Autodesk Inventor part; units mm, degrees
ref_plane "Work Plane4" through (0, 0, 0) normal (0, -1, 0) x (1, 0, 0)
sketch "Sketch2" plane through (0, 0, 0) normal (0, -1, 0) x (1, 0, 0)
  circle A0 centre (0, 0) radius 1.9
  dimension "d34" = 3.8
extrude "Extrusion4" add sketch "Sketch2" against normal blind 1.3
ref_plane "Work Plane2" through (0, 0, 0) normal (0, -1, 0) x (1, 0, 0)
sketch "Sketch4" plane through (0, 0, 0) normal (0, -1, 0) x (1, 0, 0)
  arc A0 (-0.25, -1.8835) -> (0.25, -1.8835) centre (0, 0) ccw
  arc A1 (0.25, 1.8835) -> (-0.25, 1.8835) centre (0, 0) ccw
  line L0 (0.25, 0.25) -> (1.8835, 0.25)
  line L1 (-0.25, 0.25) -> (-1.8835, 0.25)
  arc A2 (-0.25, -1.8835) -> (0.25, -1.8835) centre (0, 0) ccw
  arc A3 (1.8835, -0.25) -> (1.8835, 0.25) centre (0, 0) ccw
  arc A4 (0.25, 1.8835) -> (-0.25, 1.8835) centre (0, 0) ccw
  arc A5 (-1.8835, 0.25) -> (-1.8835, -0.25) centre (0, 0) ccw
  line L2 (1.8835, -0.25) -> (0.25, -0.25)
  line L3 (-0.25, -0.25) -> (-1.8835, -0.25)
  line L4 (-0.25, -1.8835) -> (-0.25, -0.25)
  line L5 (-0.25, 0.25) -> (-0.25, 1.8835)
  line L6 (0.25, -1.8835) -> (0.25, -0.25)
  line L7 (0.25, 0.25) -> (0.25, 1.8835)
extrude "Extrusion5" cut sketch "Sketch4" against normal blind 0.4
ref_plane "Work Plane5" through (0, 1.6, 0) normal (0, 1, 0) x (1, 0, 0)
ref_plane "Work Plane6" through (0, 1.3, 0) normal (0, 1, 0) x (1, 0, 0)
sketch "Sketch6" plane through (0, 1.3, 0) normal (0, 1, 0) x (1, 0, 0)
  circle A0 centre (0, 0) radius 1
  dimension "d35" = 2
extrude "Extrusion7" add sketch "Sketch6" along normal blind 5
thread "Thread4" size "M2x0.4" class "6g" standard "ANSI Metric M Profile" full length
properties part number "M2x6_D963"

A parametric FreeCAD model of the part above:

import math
import FreeCAD as App
import Part
import Sketcher
Q = App.Units.Quantity

doc = App.newDocument("Part")
params = doc.addObject("Spreadsheet::Sheet", "Params")
for row, (alias, value) in enumerate([
    ("sketch1_diameter", "3.8 mm"),
    ("pad1_length", "1.3 mm"),
    ("sketch2_radius", "1.9 mm"),
    ("pocket1_length", "0.4 mm"),
    ("sketch3_diameter", "2 mm"),
    ("pad2_length", "5 mm"),
], start=1):
    params.set(f"A{row}", alias)
    params.set(f"B{row}", "=" + value)
    params.setAlias(f"B{row}", alias)

body = doc.addObject("PartDesign::Body", "Body")

sketch1 = body.newObject("Sketcher::SketchObject", "Sketch")
sketch1.AttachmentSupport = (doc.getObject("XZ_Plane"), [""])
sketch1.MapMode = "FlatFace"
sketch1.addGeometry(Part.Circle(App.Vector(0, 0, 0), App.Vector(0, 0, 1), 1.9), False)
sketch1.addConstraint(Sketcher.Constraint("Coincident", 0, 3, -1, 1))
sketch1.addConstraint(Sketcher.Constraint("Diameter", 0, Q("3.8 mm")))
sketch1.setExpression("Constraints[1]", "Params.sketch1_diameter")
pad1 = body.newObject("PartDesign::Pad", "Pad")
pad1.Profile = sketch1
pad1.setExpression("Length", "Params.pad1_length")
pad1.Reversed = True

sketch2 = body.newObject("Sketcher::SketchObject", "Sketch001")
sketch2.AttachmentSupport = (doc.getObject("XZ_Plane"), [""])
sketch2.MapMode = "FlatFace"
sketch2.addGeometry(Part.LineSegment(App.Vector(-0.2, -0.2, 0), App.Vector(-0.2, -1.9, 0)), False)
sketch2.addGeometry(Part.ArcOfCircle(Part.Circle(App.Vector(0, 0, 0), App.Vector(0, 0, 1), 1.9), math.radians(-97.56), math.radians(-82.44)), False)
sketch2.addGeometry(Part.LineSegment(App.Vector(0.2, -1.9, 0), App.Vector(0.2, -0.2, 0)), False)
sketch2.addGeometry(Part.LineSegment(App.Vector(0.2, -0.2, 0), App.Vector(1.9, -0.2, 0)), False)
sketch2.addGeometry(Part.ArcOfCircle(Part.Circle(App.Vector(0, 0, 0), App.Vector(0, 0, 1), 1.9), math.radians(-7.56), math.radians(7.56)), False)
sketch2.addGeometry(Part.LineSegment(App.Vector(1.9, 0.2, 0), App.Vector(0.2, 0.2, 0)), False)
sketch2.addGeometry(Part.LineSegment(App.Vector(0.2, 0.2, 0), App.Vector(0.2, 1.9, 0)), False)
sketch2.addGeometry(Part.ArcOfCircle(Part.Circle(App.Vector(0, 0, 0), App.Vector(0, 0, 1), 1.9), math.radians(82.44), math.radians(97.56)), False)
sketch2.addGeometry(Part.LineSegment(App.Vector(-0.2, 1.9, 0), App.Vector(-0.2, 0.2, 0)), False)
sketch2.addGeometry(Part.LineSegment(App.Vector(-0.2, 0.2, 0), App.Vector(-1.9, 0.2, 0)), False)
sketch2.addGeometry(Part.ArcOfCircle(Part.Circle(App.Vector(0, 0, 0), App.Vector(0, 0, 1), 1.9), math.radians(172.44), math.radians(187.56)), False)
sketch2.addGeometry(Part.LineSegment(App.Vector(-1.9, -0.2, 0), App.Vector(-0.2, -0.2, 0)), False)
sketch2.addConstraint(Sketcher.Constraint("Coincident", 0, 2, 1, 1))
sketch2.addConstraint(Sketcher.Constraint("Coincident", 1, 2, 2, 1))
sketch2.addConstraint(Sketcher.Constraint("Coincident", 2, 2, 3, 1))
sketch2.addConstraint(Sketcher.Constraint("Coincident", 3, 2, 4, 1))
sketch2.addConstraint(Sketcher.Constraint("Coincident", 4, 2, 5, 1))
sketch2.addConstraint(Sketcher.Constraint("Coincident", 5, 2, 6, 1))
sketch2.addConstraint(Sketcher.Constraint("Coincident", 6, 2, 7, 1))
sketch2.addConstraint(Sketcher.Constraint("Coincident", 7, 2, 8, 1))
sketch2.addConstraint(Sketcher.Constraint("Coincident", 8, 2, 9, 1))
sketch2.addConstraint(Sketcher.Constraint("Coincident", 9, 2, 10, 1))
sketch2.addConstraint(Sketcher.Constraint("Coincident", 10, 2, 11, 1))
sketch2.addConstraint(Sketcher.Constraint("Coincident", 11, 2, 0, 1))
sketch2.addConstraint(Sketcher.Constraint("Vertical", 0))
sketch2.addConstraint(Sketcher.Constraint("Vertical", 2))
sketch2.addConstraint(Sketcher.Constraint("Horizontal", 3))
sketch2.addConstraint(Sketcher.Constraint("Horizontal", 5))
sketch2.addConstraint(Sketcher.Constraint("Vertical", 6))
sketch2.addConstraint(Sketcher.Constraint("Vertical", 8))
sketch2.addConstraint(Sketcher.Constraint("Horizontal", 9))
sketch2.addConstraint(Sketcher.Constraint("Horizontal", 11))
sketch2.addConstraint(Sketcher.Constraint("Coincident", 1, 3, -1, 1))
sketch2.addConstraint(Sketcher.Constraint("Coincident", 4, 3, -1, 1))
sketch2.addConstraint(Sketcher.Constraint("Coincident", 7, 3, -1, 1))
sketch2.addConstraint(Sketcher.Constraint("Coincident", 10, 3, -1, 1))
sketch2.addConstraint(Sketcher.Constraint("Equal", 1, 4))
sketch2.addConstraint(Sketcher.Constraint("Equal", 4, 7))
sketch2.addConstraint(Sketcher.Constraint("Equal", 7, 10))
sketch2.addConstraint(Sketcher.Constraint("Symmetric", 2, 2, 8, 2, -1, 1))
sketch2.addConstraint(Sketcher.Constraint("Symmetric", 5, 2, 11, 2, -1, 1))
sketch2.addConstraint(Sketcher.Constraint("Symmetric", 5, 2, 8, 2, -2))
sketch2.addConstraint(Sketcher.Constraint("Equal", 11, 0))
sketch2.addConstraint(Sketcher.Constraint("Radius", 1, Q("1.9 mm")))
sketch2.addConstraint(Sketcher.Constraint("DistanceX", 0, 2, 1, 2, Q("0.5 mm")))
sketch2.setExpression("Constraints[31]", "Params.sketch2_radius")
pocket1 = body.newObject("PartDesign::Pocket", "Pocket")
pocket1.Profile = sketch2
pocket1.setExpression("Length", "Params.pocket1_length")

sketch3 = body.newObject("Sketcher::SketchObject", "Sketch002")
sketch3.AttachmentSupport = (doc.getObject("XZ_Plane"), [""])
sketch3.MapMode = "FlatFace"
sketch3.AttachmentOffset = App.Placement(App.Vector(0, 0, -1.3), App.Rotation())
sketch3.addGeometry(Part.Circle(App.Vector(0, 0, 0), App.Vector(0, 0, 1), 1), False)
sketch3.addConstraint(Sketcher.Constraint("Coincident", 0, 3, -1, 1))
sketch3.addConstraint(Sketcher.Constraint("Diameter", 0, Q("2 mm")))
sketch3.setExpression("Constraints[1]", "Params.sketch3_diameter")
pad2 = body.newObject("PartDesign::Pad", "Pad001")
pad2.Profile = sketch3
pad2.setExpression("Length", "Params.pad2_length")
pad2.Reversed = True

doc.recompute()
